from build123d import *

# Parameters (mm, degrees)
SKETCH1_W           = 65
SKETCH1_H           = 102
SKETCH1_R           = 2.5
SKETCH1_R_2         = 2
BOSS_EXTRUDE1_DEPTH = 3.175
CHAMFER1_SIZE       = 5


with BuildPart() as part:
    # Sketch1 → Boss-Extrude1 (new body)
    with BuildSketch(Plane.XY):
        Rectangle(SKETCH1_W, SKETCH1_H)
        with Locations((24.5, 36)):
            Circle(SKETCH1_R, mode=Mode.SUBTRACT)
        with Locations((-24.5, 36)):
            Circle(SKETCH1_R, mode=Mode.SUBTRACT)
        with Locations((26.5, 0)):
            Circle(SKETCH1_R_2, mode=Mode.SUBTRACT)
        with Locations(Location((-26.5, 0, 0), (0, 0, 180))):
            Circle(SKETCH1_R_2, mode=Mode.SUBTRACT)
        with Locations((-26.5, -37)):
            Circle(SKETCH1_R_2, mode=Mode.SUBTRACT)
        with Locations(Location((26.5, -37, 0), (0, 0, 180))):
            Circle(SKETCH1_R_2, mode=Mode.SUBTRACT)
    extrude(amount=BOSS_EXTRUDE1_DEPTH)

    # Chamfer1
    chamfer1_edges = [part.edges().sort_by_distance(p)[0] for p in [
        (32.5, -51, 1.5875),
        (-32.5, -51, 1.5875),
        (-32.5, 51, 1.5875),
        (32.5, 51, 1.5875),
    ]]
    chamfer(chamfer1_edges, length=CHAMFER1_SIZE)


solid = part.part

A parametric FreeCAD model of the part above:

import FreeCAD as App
import Part
import Sketcher

V = App.Vector
Q = App.Units.Quantity


def edges_at(feature, points):
    """Names of the edges that pass closest to the given points."""
    edges = feature.Shape.Edges
    near = lambda p: min(range(len(edges)), key=lambda i: edges[i].distToShape(Part.Vertex(*p))[0])
    return sorted({f"Edge{near(p) + 1}" for p in points})


def add_polygon(sketch, points):
    """Adds a closed chain of lines whose ends are joined by coincident constraints."""
    first, n = sketch.GeometryCount, len(points)
    for a, b in zip(points, points[1:] + points[:1]):
        sketch.addGeometry(Part.LineSegment(App.Vector(*a, 0), App.Vector(*b, 0)), False)
    for i in range(n):
        sketch.addConstraint(Sketcher.Constraint("Coincident", first + i, 2, first + (i + 1) % n, 1))

doc = App.newDocument("Part")
body = doc.addObject("PartDesign::Body", "Body")

sketch1 = body.newObject("Sketcher::SketchObject", "Sketch")
sketch1.AttachmentSupport = (doc.getObject("XY_Plane"), [""])
sketch1.MapMode = "FlatFace"
add_polygon(sketch1, [(-32.5, 51), (-32.5, -51), (32.5, -51), (32.5, 51)])
sketch1.addGeometry(Part.Circle(V(-26.5, -37, 0), V(0, 0, 1), 2), False)
sketch1.addGeometry(Part.Circle(V(26.5, -37, 0), V(0, 0, 1), 2), False)
sketch1.addGeometry(Part.Circle(V(-26.5, 0, 0), V(0, 0, 1), 2), False)
sketch1.addGeometry(Part.Circle(V(-24.5, 36, 0), V(0, 0, 1), 2.5), False)
sketch1.addGeometry(Part.Circle(V(26.5, 0, 0), V(0, 0, 1), 2), False)
sketch1.addGeometry(Part.Circle(V(24.5, 36, 0), V(0, 0, 1), 2.5), False)
sketch1.addConstraint(Sketcher.Constraint("Vertical", 0))
sketch1.addConstraint(Sketcher.Constraint("Horizontal", 1))
sketch1.addConstraint(Sketcher.Constraint("Vertical", 2))
sketch1.addConstraint(Sketcher.Constraint("Horizontal", 3))
sketch1.addConstraint(Sketcher.Constraint("Equal", 4, 5))
sketch1.addConstraint(Sketcher.Constraint("Equal", 5, 6))
sketch1.addConstraint(Sketcher.Constraint("Equal", 6, 8))
sketch1.addConstraint(Sketcher.Constraint("Equal", 7, 9))
sketch1.addConstraint(Sketcher.Constraint("Symmetric", 6, 3, 8, 3, -1, 1))
sketch1.addConstraint(Sketcher.Constraint("Symmetric", 0, 2, 2, 2, -1, 1))
sketch1.addConstraint(Sketcher.Constraint("Symmetric", 4, 3, 5, 3, -2))
sketch1.addConstraint(Sketcher.Constraint("Symmetric", 7, 3, 9, 3, -2))
sketch1.addConstraint(Sketcher.Constraint("PointOnObject", 6, 3, -1))
sketch1.addConstraint(Sketcher.Constraint("Vertical", 4, 3, 6, 3))
sketch1.addConstraint(Sketcher.Constraint("Diameter", 4, Q("4 mm")))
sketch1.addConstraint(Sketcher.Constraint("Diameter", 7, Q("5 mm")))
sketch1.addConstraint(Sketcher.Constraint("DistanceX", 1, 1, 1, 2, Q("65 mm")))
sketch1.addConstraint(Sketcher.Constraint("DistanceY", 0, 2, 0, 1, Q("102 mm")))
sketch1.addConstraint(Sketcher.Constraint("DistanceY", 4, 3, -1, 1, Q("37 mm")))
sketch1.addConstraint(Sketcher.Constraint("DistanceY", -1, 1, 7, 3, Q("36 mm")))
sketch1.addConstraint(Sketcher.Constraint("DistanceX", 4, 3, 5, 3, Q("53 mm")))
sketch1.addConstraint(Sketcher.Constraint("DistanceX", 6, 3, 7, 3, Q("2 mm")))
pad1 = body.newObject("PartDesign::Pad", "Pad")
pad1.Profile = sketch1
pad1.Length = 3.175
doc.recompute()

chamfer = body.newObject("PartDesign::Chamfer", "Chamfer")
chamfer.Base = (pad1, edges_at(pad1, [
    (32.5, -51, 1.587),
    (-32.5, -51, 1.587),
    (-32.5, 51, 1.587),
    (32.5, 51, 1.587),
]))
chamfer.Size = 5

doc.recompute()
